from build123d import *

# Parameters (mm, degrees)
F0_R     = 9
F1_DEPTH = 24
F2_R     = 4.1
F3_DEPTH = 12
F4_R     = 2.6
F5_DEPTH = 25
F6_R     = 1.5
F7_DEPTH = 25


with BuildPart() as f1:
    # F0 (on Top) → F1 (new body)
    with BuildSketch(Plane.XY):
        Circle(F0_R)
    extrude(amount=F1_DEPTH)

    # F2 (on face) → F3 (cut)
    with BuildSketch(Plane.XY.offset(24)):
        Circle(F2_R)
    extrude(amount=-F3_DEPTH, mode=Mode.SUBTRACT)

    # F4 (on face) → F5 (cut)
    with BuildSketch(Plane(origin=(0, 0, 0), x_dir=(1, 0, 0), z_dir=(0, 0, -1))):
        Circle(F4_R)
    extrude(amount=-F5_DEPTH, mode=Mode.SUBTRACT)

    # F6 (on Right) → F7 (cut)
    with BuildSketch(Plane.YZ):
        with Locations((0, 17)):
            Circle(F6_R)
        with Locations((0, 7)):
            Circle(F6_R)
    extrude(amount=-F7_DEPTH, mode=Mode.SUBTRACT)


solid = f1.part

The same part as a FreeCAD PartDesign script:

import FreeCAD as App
import Part
import Sketcher
from FreeCAD import Vector
Q = App.Units.Quantity

doc = App.newDocument("Part")
body = doc.addObject("PartDesign::Body", "Body")

# Sketch on XY plane
sketch1 = doc.addObject("Sketcher::SketchObject", "Sketch")
body.addObject(sketch1)
sketch1.AttachmentSupport = (doc.XY_Plane, [""])
sketch1.MapMode = "FlatFace"
sketch1.addGeometry(Part.Circle(Vector(0, 0, 0), Vector(0, 0, 1), 9), False)
sketch1.addConstraint([
    Sketcher.Constraint("Coincident", 0, 3, -1, 1),
    Sketcher.Constraint("Diameter", 0, Q("18 mm")),
])
pad1 = doc.addObject("PartDesign::Pad", "Pad")
body.addObject(pad1)
pad1.Profile = sketch1
pad1.Length = 24

# Sketch on XY plane
sketch2 = doc.addObject("Sketcher::SketchObject", "Sketch001")
body.addObject(sketch2)
sketch2.AttachmentSupport = (doc.XY_Plane, [""])
sketch2.MapMode = "FlatFace"
sketch2.AttachmentOffset = App.Placement(Vector(0, 0, 24), App.Rotation())
sketch2.addGeometry(Part.Circle(Vector(0, 0, 0), Vector(0, 0, 1), 4.1), False)
sketch2.addConstraint([
    Sketcher.Constraint("Coincident", 0, 3, -1, 1),
    Sketcher.Constraint("Diameter", 0, Q("8.2 mm")),
])
pocket1 = doc.addObject("PartDesign::Pocket", "Pocket")
body.addObject(pocket1)
pocket1.Profile = sketch2
pocket1.Length = 12

# Sketch on XY plane
sketch3 = doc.addObject("Sketcher::SketchObject", "Sketch002")
body.addObject(sketch3)
sketch3.AttachmentSupport = (doc.XY_Plane, [""])
sketch3.MapMode = "FlatFace"
sketch3.addGeometry(Part.Circle(Vector(0, 0, 0), Vector(0, 0, 1), 2.6), False)
sketch3.addConstraint([
    Sketcher.Constraint("Coincident", 0, 3, -1, 1),
    Sketcher.Constraint("Diameter", 0, Q("5.2 mm")),
])
pocket2 = doc.addObject("PartDesign::Pocket", "Pocket001")
body.addObject(pocket2)
pocket2.Profile = sketch3
pocket2.Length = 25
pocket2.Reversed = True

# Sketch on YZ plane
sketch4 = doc.addObject("Sketcher::SketchObject", "Sketch003")
body.addObject(sketch4)
sketch4.AttachmentSupport = (doc.YZ_Plane, [""])
sketch4.MapMode = "FlatFace"
sketch4.addGeometry([
    Part.Circle(Vector(0, 17, 0), Vector(0, 0, 1), 1.5),
    Part.Circle(Vector(0, 7, 0), Vector(0, 0, 1), 1.5),
], False)
sketch4.addConstraint([
    Sketcher.Constraint("Equal", 0, 1),
    Sketcher.Constraint("PointOnObject", 0, 3, -2),
    Sketcher.Constraint("PointOnObject", 1, 3, -2),
    Sketcher.Constraint("Diameter", 0, Q("3 mm")),
    Sketcher.Constraint("DistanceY", -1, 1, 0, 3, Q("17 mm")),
    Sketcher.Constraint("DistanceY", -1, 1, 1, 3, Q("7 mm")),
])
pocket3 = doc.addObject("PartDesign::Pocket", "Pocket002")
body.addObject(pocket3)
pocket3.Profile = sketch4
pocket3.Length = 25

doc.recompute()
